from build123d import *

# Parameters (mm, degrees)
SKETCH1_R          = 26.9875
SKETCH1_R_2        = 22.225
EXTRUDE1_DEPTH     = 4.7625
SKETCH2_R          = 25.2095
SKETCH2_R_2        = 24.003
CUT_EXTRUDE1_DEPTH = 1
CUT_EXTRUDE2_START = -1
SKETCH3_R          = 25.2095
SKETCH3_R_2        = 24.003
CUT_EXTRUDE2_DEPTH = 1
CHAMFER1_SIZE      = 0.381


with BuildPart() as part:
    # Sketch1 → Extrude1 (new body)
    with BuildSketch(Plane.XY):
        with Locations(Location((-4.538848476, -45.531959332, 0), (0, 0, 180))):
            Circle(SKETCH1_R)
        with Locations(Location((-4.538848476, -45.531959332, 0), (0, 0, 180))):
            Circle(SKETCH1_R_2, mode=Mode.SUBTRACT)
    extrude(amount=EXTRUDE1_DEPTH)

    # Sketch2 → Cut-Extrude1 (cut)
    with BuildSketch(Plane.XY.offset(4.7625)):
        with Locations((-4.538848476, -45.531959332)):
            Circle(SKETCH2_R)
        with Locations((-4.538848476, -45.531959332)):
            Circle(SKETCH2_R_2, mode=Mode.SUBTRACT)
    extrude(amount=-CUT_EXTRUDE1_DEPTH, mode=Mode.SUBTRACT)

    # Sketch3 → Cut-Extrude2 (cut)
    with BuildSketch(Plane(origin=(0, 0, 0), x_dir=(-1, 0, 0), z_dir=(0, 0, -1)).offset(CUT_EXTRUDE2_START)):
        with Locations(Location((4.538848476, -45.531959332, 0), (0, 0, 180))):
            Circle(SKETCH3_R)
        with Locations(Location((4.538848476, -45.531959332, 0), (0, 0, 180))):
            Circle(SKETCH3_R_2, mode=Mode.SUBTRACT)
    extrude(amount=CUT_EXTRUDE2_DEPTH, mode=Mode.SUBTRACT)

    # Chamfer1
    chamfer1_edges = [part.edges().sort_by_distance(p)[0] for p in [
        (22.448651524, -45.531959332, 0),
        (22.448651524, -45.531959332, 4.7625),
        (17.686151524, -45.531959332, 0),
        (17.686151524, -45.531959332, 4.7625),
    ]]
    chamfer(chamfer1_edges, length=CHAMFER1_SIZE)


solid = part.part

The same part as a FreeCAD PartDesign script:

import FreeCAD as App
import Part
import Sketcher

V = App.Vector
Q = App.Units.Quantity


def edges_at(feature, points):
    """Names of the edges that pass closest to the given points."""
    edges = feature.Shape.Edges
    near = lambda p: min(range(len(edges)), key=lambda i: edges[i].distToShape(Part.Vertex(*p))[0])
    return sorted({f"Edge{near(p) + 1}" for p in points})

doc = App.newDocument("Part")
params = doc.addObject("Spreadsheet::Sheet", "Params")
for row, (alias, value) in enumerate([
    ("sketch1_diameter", "1.75 in"),
    ("sketch1_diameter2", "2.125 in"),
    ("pad1_length", "0.1875 in"),
    ("sketch2_diameter", "1.89 in"),
    ("sketch2_diameter2", "1.985 in"),
    ("pocket1_length", "1 mm"),
    ("sketch3_diameter", "1.89 in"),
    ("sketch3_diameter2", "1.985 in"),
    ("pocket2_length", "1 mm"),
    ("chamfer_size", "0.015 in"),
], start=1):
    params.set(f"A{row}", alias)
    params.set(f"B{row}", "=" + value)
    params.setAlias(f"B{row}", alias)

body = doc.addObject("PartDesign::Body", "Body")

sketch1 = body.newObject("Sketcher::SketchObject", "Sketch")
sketch1.AttachmentSupport = (doc.getObject("XY_Plane"), [""])
sketch1.MapMode = "FlatFace"
sketch1.addGeometry([
    Part.Circle(V(-5, -46, 0), V(0, 0, 1), 27),
    Part.Circle(V(-5, -46, 0), V(0, 0, 1), 22),
], False)
sketch1.addConstraint([
    Sketcher.Constraint("Coincident", 1, 3, 0, 3),
    Sketcher.Constraint("Diameter", 1, Q("1.75 in")),
    Sketcher.Constraint("Diameter", 0, Q("2.125 in")),
    Sketcher.Constraint("DistanceX", 0, 3, -1, 1, Q("4.538848 mm")),
    Sketcher.Constraint("DistanceY", 0, 3, -1, 1, Q("45.531959 mm")),
])
sketch1.setExpression("Constraints[1]", "Params.sketch1_diameter")
sketch1.setExpression("Constraints[2]", "Params.sketch1_diameter2")
pad1 = body.newObject("PartDesign::Pad", "Pad")
pad1.Profile = sketch1
pad1.setExpression("Length", "Params.pad1_length")

sketch2 = body.newObject("Sketcher::SketchObject", "Sketch001")
sketch2.AttachmentSupport = (doc.getObject("XY_Plane"), [""])
sketch2.MapMode = "FlatFace"
sketch2.AttachmentOffset = App.Placement(V(0, 0, 0.1875 * 25.4), App.Rotation())
sketch2.addGeometry([
    Part.Circle(V(-5, -46, 0), V(0, 0, 1), 25),
    Part.Circle(V(-5, -46, 0), V(0, 0, 1), 24),
], False)
sketch2.addConstraint([
    Sketcher.Constraint("Coincident", 1, 3, 0, 3),
    Sketcher.Constraint("Diameter", 1, Q("1.89 in")),
    Sketcher.Constraint("Diameter", 0, Q("1.985 in")),
    Sketcher.Constraint("DistanceX", 0, 3, -1, 1, Q("4.538848 mm")),
    Sketcher.Constraint("DistanceY", 0, 3, -1, 1, Q("45.531959 mm")),
])
sketch2.setExpression("Constraints[1]", "Params.sketch2_diameter")
sketch2.setExpression("Constraints[2]", "Params.sketch2_diameter2")
pocket1 = body.newObject("PartDesign::Pocket", "Pocket")
pocket1.Profile = sketch2
pocket1.setExpression("Length", "Params.pocket1_length")

sketch3 = body.newObject("Sketcher::SketchObject", "Sketch002")
sketch3.AttachmentSupport = (doc.getObject("XY_Plane"), [""])
sketch3.MapMode = "FlatFace"
sketch3.AttachmentOffset = App.Placement(V(0, 0, 1), App.Rotation())
sketch3.addGeometry([
    Part.Circle(V(-5, -46, 0), V(0, 0, 1), 25),
    Part.Circle(V(-5, -46, 0), V(0, 0, 1), 24),
], False)
sketch3.addConstraint([
    Sketcher.Constraint("Coincident", 1, 3, 0, 3),
    Sketcher.Constraint("Diameter", 1, Q("1.89 in")),
    Sketcher.Constraint("Diameter", 0, Q("1.985 in")),
    Sketcher.Constraint("DistanceX", 0, 3, -1, 1, Q("4.538848 mm")),
    Sketcher.Constraint("DistanceY", 0, 3, -1, 1, Q("45.531959 mm")),
])
sketch3.setExpression("Constraints[1]", "Params.sketch3_diameter")
sketch3.setExpression("Constraints[2]", "Params.sketch3_diameter2")
pocket2 = body.newObject("PartDesign::Pocket", "Pocket001")
pocket2.Profile = sketch3
pocket2.setExpression("Length", "Params.pocket2_length")
doc.recompute()

chamfer = body.newObject("PartDesign::Chamfer", "Chamfer")
chamfer.Base = (pocket2, edges_at(pocket2, [
    (22.449, -45.532, 0),
    (22.449, -45.532, 4.763),
    (17.686, -45.532, 0),
    (17.686, -45.532, 4.763),
]))
chamfer.setExpression("Size", "Params.chamfer_size")

doc.recompute()
